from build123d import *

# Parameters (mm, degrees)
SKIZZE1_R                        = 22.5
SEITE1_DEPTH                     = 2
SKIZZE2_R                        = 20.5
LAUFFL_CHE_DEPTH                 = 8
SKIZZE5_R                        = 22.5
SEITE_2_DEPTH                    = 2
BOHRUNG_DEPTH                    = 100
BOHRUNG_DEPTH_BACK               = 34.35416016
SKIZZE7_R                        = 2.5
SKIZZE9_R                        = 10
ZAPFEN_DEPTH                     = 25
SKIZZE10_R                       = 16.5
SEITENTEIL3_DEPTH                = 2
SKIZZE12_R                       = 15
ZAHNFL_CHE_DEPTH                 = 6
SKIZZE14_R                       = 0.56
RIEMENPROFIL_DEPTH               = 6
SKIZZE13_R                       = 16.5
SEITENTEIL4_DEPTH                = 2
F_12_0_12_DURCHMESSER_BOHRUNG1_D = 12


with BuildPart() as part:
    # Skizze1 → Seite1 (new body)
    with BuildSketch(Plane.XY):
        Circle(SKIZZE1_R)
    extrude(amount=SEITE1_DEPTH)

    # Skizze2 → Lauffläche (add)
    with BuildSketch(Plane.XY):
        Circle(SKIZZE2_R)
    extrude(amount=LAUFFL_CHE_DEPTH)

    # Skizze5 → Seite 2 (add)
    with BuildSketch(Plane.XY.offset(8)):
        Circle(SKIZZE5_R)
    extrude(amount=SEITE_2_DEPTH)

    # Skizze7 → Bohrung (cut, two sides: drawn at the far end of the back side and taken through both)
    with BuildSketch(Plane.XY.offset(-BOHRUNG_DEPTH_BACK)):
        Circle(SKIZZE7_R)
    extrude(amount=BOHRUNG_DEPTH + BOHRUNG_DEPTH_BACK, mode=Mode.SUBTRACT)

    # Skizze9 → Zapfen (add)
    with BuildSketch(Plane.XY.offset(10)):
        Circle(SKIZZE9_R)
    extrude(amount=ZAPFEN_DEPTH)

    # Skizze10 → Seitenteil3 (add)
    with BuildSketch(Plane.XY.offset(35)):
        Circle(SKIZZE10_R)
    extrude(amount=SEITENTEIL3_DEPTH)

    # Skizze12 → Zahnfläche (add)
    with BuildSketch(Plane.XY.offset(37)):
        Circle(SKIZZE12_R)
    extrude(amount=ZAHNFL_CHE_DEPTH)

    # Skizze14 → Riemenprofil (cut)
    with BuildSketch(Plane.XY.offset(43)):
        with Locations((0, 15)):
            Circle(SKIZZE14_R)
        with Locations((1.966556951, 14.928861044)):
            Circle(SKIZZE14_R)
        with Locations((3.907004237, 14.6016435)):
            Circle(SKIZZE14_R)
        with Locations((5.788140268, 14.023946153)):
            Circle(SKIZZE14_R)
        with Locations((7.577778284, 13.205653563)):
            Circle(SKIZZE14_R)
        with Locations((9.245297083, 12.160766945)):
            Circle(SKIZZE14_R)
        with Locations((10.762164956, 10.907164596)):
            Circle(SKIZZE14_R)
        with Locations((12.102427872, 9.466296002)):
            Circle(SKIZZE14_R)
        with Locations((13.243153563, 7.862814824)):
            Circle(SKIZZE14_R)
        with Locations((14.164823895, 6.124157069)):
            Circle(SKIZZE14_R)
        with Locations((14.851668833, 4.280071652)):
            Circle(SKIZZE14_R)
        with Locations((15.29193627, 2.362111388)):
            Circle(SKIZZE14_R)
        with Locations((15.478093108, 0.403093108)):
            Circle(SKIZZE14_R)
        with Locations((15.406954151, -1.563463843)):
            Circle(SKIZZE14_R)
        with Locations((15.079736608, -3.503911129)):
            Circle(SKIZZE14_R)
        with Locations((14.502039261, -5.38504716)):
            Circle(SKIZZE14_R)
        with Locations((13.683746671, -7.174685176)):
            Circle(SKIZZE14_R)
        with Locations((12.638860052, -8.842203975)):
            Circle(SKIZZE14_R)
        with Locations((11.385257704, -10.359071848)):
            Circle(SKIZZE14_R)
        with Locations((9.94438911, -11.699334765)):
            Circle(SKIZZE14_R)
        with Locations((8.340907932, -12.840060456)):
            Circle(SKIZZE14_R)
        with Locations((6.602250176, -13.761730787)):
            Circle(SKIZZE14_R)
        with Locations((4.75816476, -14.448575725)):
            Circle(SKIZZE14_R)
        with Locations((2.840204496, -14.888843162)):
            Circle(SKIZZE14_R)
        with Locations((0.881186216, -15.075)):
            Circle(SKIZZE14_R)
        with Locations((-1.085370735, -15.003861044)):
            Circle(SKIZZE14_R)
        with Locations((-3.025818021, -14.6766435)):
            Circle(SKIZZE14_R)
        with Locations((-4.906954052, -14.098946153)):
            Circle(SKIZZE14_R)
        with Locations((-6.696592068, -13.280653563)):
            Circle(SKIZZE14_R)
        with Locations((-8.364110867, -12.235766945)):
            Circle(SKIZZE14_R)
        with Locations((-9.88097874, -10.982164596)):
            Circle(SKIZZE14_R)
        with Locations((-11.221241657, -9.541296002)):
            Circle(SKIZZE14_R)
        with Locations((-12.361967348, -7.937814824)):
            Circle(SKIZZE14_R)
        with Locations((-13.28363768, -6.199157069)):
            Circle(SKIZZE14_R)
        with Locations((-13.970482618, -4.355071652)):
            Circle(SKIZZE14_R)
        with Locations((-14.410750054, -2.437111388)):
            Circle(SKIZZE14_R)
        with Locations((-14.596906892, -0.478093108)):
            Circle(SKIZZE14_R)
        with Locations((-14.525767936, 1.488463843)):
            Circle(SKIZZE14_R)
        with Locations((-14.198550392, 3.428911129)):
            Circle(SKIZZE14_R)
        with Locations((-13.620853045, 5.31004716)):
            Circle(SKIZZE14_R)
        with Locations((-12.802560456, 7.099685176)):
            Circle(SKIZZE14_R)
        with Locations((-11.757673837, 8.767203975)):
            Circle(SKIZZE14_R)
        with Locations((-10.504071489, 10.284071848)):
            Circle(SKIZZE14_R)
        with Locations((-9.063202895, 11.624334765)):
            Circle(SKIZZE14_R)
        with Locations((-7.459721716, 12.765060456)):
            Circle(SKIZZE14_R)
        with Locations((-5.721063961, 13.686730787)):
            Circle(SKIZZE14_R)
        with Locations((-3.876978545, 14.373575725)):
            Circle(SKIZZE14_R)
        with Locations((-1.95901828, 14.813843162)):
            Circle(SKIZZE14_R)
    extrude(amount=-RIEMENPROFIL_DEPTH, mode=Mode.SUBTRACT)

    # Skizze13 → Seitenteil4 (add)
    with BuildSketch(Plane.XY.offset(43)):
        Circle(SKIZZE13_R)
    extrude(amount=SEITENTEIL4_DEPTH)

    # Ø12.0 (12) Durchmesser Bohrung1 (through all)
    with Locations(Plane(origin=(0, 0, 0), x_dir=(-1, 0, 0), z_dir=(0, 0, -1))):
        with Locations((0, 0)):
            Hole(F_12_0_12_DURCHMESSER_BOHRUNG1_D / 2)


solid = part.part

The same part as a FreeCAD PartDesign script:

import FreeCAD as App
import Part
import Sketcher

doc = App.newDocument("Part")
body = doc.addObject("PartDesign::Body", "Body")

# Sketch on XY plane
sketch1 = doc.addObject("Sketcher::SketchObject", "Sketch")
body.addObject(sketch1)
sketch1.AttachmentSupport = (doc.XY_Plane, [""])
sketch1.MapMode = "FlatFace"
sketch1.addGeometry(Part.Circle(App.Vector(0, 0, 0), App.Vector(0, 0, 1), 22.5), False)
sketch1.addConstraint([
    Sketcher.Constraint("Coincident", 0, 3, -1, 1),
    Sketcher.Constraint("Diameter", 0, 45.0),
])
pad1 = doc.addObject("PartDesign::Pad", "Pad")
body.addObject(pad1)
pad1.Profile = sketch1
pad1.Length = 2

# Sketch on XY plane
sketch2 = doc.addObject("Sketcher::SketchObject", "Sketch001")
body.addObject(sketch2)
sketch2.AttachmentSupport = (doc.XY_Plane, [""])
sketch2.MapMode = "FlatFace"
sketch2.addGeometry(Part.Circle(App.Vector(0, 0, 0), App.Vector(0, 0, 1), 20.5), False)
sketch2.addConstraint([
    Sketcher.Constraint("Coincident", 0, 3, -1, 1),
    Sketcher.Constraint("Diameter", 0, 41.0),
])
pad2 = doc.addObject("PartDesign::Pad", "Pad001")
body.addObject(pad2)
pad2.Profile = sketch2
pad2.Length = 8

# Sketch on XY plane
sketch3 = doc.addObject("Sketcher::SketchObject", "Sketch002")
body.addObject(sketch3)
sketch3.AttachmentSupport = (doc.XY_Plane, [""])
sketch3.MapMode = "FlatFace"
sketch3.AttachmentOffset = App.Placement(App.Vector(0, 0, 8), App.Rotation())
sketch3.addGeometry(Part.Circle(App.Vector(0, 0, 0), App.Vector(0, 0, 1), 22.5), False)
sketch3.addConstraint([
    Sketcher.Constraint("Coincident", 0, 3, -1, 1),
    Sketcher.Constraint("Diameter", 0, 45.0),
])
pad3 = doc.addObject("PartDesign::Pad", "Pad002")
body.addObject(pad3)
pad3.Profile = sketch3
pad3.Length = 2

# Sketch on XY plane
sketch4 = doc.addObject("Sketcher::SketchObject", "Sketch003")
body.addObject(sketch4)
sketch4.AttachmentSupport = (doc.XY_Plane, [""])
sketch4.MapMode = "FlatFace"
sketch4.addGeometry(Part.Circle(App.Vector(0, 0, 0), App.Vector(0, 0, 1), 2.5), False)
sketch4.addConstraint([
    Sketcher.Constraint("Coincident", 0, 3, -1, 1),
    Sketcher.Constraint("Diameter", 0, 5.0),
])
pocket1 = doc.addObject("PartDesign::Pocket", "Pocket")
body.addObject(pocket1)
pocket1.Profile = sketch4
pocket1.Type = "ThroughAll"
pocket1.Midplane = True

# Sketch on XY plane
sketch5 = doc.addObject("Sketcher::SketchObject", "Sketch004")
body.addObject(sketch5)
sketch5.AttachmentSupport = (doc.XY_Plane, [""])
sketch5.MapMode = "FlatFace"
sketch5.AttachmentOffset = App.Placement(App.Vector(0, 0, 10), App.Rotation())
sketch5.addGeometry(Part.Circle(App.Vector(0, 0, 0), App.Vector(0, 0, 1), 10), False)
sketch5.addConstraint([
    Sketcher.Constraint("Coincident", 0, 3, -1, 1),
    Sketcher.Constraint("Diameter", 0, 20.0),
])
pad4 = doc.addObject("PartDesign::Pad", "Pad003")
body.addObject(pad4)
pad4.Profile = sketch5
pad4.Length = 25

# Sketch on XY plane
sketch6 = doc.addObject("Sketcher::SketchObject", "Sketch005")
body.addObject(sketch6)
sketch6.AttachmentSupport = (doc.XY_Plane, [""])
sketch6.MapMode = "FlatFace"
sketch6.AttachmentOffset = App.Placement(App.Vector(0, 0, 35), App.Rotation())
sketch6.addGeometry(Part.Circle(App.Vector(0, 0, 0), App.Vector(0, 0, 1), 16.5), False)
sketch6.addConstraint([
    Sketcher.Constraint("Coincident", 0, 3, -1, 1),
    Sketcher.Constraint("Diameter", 0, 33.0),
])
pad5 = doc.addObject("PartDesign::Pad", "Pad004")
body.addObject(pad5)
pad5.Profile = sketch6
pad5.Length = 2

# Sketch on XY plane
sketch7 = doc.addObject("Sketcher::SketchObject", "Sketch006")
body.addObject(sketch7)
sketch7.AttachmentSupport = (doc.XY_Plane, [""])
sketch7.MapMode = "FlatFace"
sketch7.AttachmentOffset = App.Placement(App.Vector(0, 0, 37), App.Rotation())
sketch7.addGeometry(Part.Circle(App.Vector(0, 0, 0), App.Vector(0, 0, 1), 15), False)
sketch7.addConstraint([
    Sketcher.Constraint("Coincident", 0, 3, -1, 1),
    Sketcher.Constraint("Diameter", 0, 30.0),
])
pad6 = doc.addObject("PartDesign::Pad", "Pad005")
body.addObject(pad6)
pad6.Profile = sketch7
pad6.Length = 6

# Sketch on XY plane
sketch8 = doc.addObject("Sketcher::SketchObject", "Sketch007")
body.addObject(sketch8)
sketch8.AttachmentSupport = (doc.XY_Plane, [""])
sketch8.MapMode = "FlatFace"
sketch8.AttachmentOffset = App.Placement(App.Vector(0, 0, 43), App.Rotation())
sketch8.addGeometry([
    Part.Circle(App.Vector(0, 15, 0), App.Vector(0, 0, 1), 0.56),  # 0
    Part.Circle(App.Vector(1.966557, 14.928861, 0), App.Vector(0, 0, 1), 0.56),  # 1
    Part.Circle(App.Vector(3.907004, 14.601643, 0), App.Vector(0, 0, 1), 0.56),  # 2
    Part.Circle(App.Vector(5.78814, 14.023946, 0), App.Vector(0, 0, 1), 0.56),  # 3
    Part.Circle(App.Vector(7.577778, 13.205654, 0), App.Vector(0, 0, 1), 0.56),  # 4
    Part.Circle(App.Vector(9.245297, 12.160767, 0), App.Vector(0, 0, 1), 0.56),  # 5
    Part.Circle(App.Vector(10.762165, 10.907165, 0), App.Vector(0, 0, 1), 0.56),  # 6
    Part.Circle(App.Vector(12.102428, 9.466296, 0), App.Vector(0, 0, 1), 0.56),  # 7
    Part.Circle(App.Vector(13.243154, 7.862815, 0), App.Vector(0, 0, 1), 0.56),  # 8
    Part.Circle(App.Vector(14.164824, 6.124157, 0), App.Vector(0, 0, 1), 0.56),  # 9
    Part.Circle(App.Vector(14.851669, 4.280072, 0), App.Vector(0, 0, 1), 0.56),  # 10
    Part.Circle(App.Vector(15.291936, 2.362111, 0), App.Vector(0, 0, 1), 0.56),  # 11
    Part.Circle(App.Vector(15.478093, 0.403093, 0), App.Vector(0, 0, 1), 0.56),  # 12
    Part.Circle(App.Vector(15.406954, -1.563464, 0), App.Vector(0, 0, 1), 0.56),  # 13
    Part.Circle(App.Vector(15.079737, -3.503911, 0), App.Vector(0, 0, 1), 0.56),  # 14
    Part.Circle(App.Vector(14.502039, -5.385047, 0), App.Vector(0, 0, 1), 0.56),  # 15
    Part.Circle(App.Vector(13.683747, -7.174685, 0), App.Vector(0, 0, 1), 0.56),  # 16
    Part.Circle(App.Vector(12.63886, -8.842204, 0), App.Vector(0, 0, 1), 0.56),  # 17
    Part.Circle(App.Vector(11.385258, -10.359072, 0), App.Vector(0, 0, 1), 0.56),  # 18
    Part.Circle(App.Vector(9.944389, -11.699335, 0), App.Vector(0, 0, 1), 0.56),  # 19
    Part.Circle(App.Vector(8.340908, -12.84006, 0), App.Vector(0, 0, 1), 0.56),  # 20
    Part.Circle(App.Vector(6.60225, -13.761731, 0), App.Vector(0, 0, 1), 0.56),  # 21
    Part.Circle(App.Vector(4.758165, -14.448576, 0), App.Vector(0, 0, 1), 0.56),  # 22
    Part.Circle(App.Vector(2.840204, -14.888843, 0), App.Vector(0, 0, 1), 0.56),  # 23
    Part.Circle(App.Vector(0.881186, -15.075, 0), App.Vector(0, 0, 1), 0.56),  # 24
    Part.Circle(App.Vector(-1.085371, -15.003861, 0), App.Vector(0, 0, 1), 0.56),  # 25
    Part.Circle(App.Vector(-3.025818, -14.676644, 0), App.Vector(0, 0, 1), 0.56),  # 26
    Part.Circle(App.Vector(-4.906954, -14.098946, 0), App.Vector(0, 0, 1), 0.56),  # 27
    Part.Circle(App.Vector(-6.696592, -13.280654, 0), App.Vector(0, 0, 1), 0.56),  # 28
    Part.Circle(App.Vector(-8.364111, -12.235767, 0), App.Vector(0, 0, 1), 0.56),  # 29
    Part.Circle(App.Vector(-9.880979, -10.982165, 0), App.Vector(0, 0, 1), 0.56),  # 30
    Part.Circle(App.Vector(-11.221242, -9.541296, 0), App.Vector(0, 0, 1), 0.56),  # 31
    Part.Circle(App.Vector(-12.361967, -7.937815, 0), App.Vector(0, 0, 1), 0.56),  # 32
    Part.Circle(App.Vector(-13.283638, -6.199157, 0), App.Vector(0, 0, 1), 0.56),  # 33
    Part.Circle(App.Vector(-13.970483, -4.355072, 0), App.Vector(0, 0, 1), 0.56),  # 34
    Part.Circle(App.Vector(-14.41075, -2.437111, 0), App.Vector(0, 0, 1), 0.56),  # 35
    Part.Circle(App.Vector(-14.596907, -0.478093, 0), App.Vector(0, 0, 1), 0.56),  # 36
    Part.Circle(App.Vector(-14.525768, 1.488464, 0), App.Vector(0, 0, 1), 0.56),  # 37
    Part.Circle(App.Vector(-14.19855, 3.428911, 0), App.Vector(0, 0, 1), 0.56),  # 38
    Part.Circle(App.Vector(-13.620853, 5.310047, 0), App.Vector(0, 0, 1), 0.56),  # 39
    Part.Circle(App.Vector(-12.80256, 7.099685, 0), App.Vector(0, 0, 1), 0.56),  # 40
    Part.Circle(App.Vector(-11.757674, 8.767204, 0), App.Vector(0, 0, 1), 0.56),  # 41
    Part.Circle(App.Vector(-10.504071, 10.284072, 0), App.Vector(0, 0, 1), 0.56),  # 42
    Part.Circle(App.Vector(-9.063203, 11.624335, 0), App.Vector(0, 0, 1), 0.56),  # 43
    Part.Circle(App.Vector(-7.459722, 12.76506, 0), App.Vector(0, 0, 1), 0.56),  # 44
    Part.Circle(App.Vector(-5.721064, 13.686731, 0), App.Vector(0, 0, 1), 0.56),  # 45
    Part.Circle(App.Vector(-3.876979, 14.373576, 0), App.Vector(0, 0, 1), 0.56),  # 46
    Part.Circle(App.Vector(-1.959018, 14.813843, 0), App.Vector(0, 0, 1), 0.56),  # 47
], False)
sketch8.addConstraint([
    Sketcher.Constraint("Equal", 0, 1),
    Sketcher.Constraint("Equal", 1, 2),
    Sketcher.Constraint("Equal", 2, 3),
    Sketcher.Constraint("Equal", 3, 4),
    Sketcher.Constraint("Equal", 4, 5),
    Sketcher.Constraint("Equal", 5, 6),
    Sketcher.Constraint("Equal", 6, 7),
    Sketcher.Constraint("Equal", 7, 8),
    Sketcher.Constraint("Equal", 8, 9),
    Sketcher.Constraint("Equal", 9, 10),
    Sketcher.Constraint("Equal", 10, 11),
    Sketcher.Constraint("Equal", 11, 12),
    Sketcher.Constraint("Equal", 12, 13),
    Sketcher.Constraint("Equal", 13, 14),
    Sketcher.Constraint("Equal", 14, 15),
    Sketcher.Constraint("Equal", 15, 16),
    Sketcher.Constraint("Equal", 16, 17),
    Sketcher.Constraint("Equal", 17, 18),
    Sketcher.Constraint("Equal", 18, 19),
    Sketcher.Constraint("Equal", 19, 20),
    Sketcher.Constraint("Equal", 20, 21),
    Sketcher.Constraint("Equal", 21, 22),
    Sketcher.Constraint("Equal", 22, 23),
    Sketcher.Constraint("Equal", 23, 24),
    Sketcher.Constraint("Equal", 24, 25),
    Sketcher.Constraint("Equal", 25, 26),
    Sketcher.Constraint("Equal", 26, 27),
    Sketcher.Constraint("Equal", 27, 28),
    Sketcher.Constraint("Equal", 28, 29),
    Sketcher.Constraint("Equal", 29, 30),
    Sketcher.Constraint("Equal", 30, 31),
    Sketcher.Constraint("Equal", 31, 32),
    Sketcher.Constraint("Equal", 32, 33),
    Sketcher.Constraint("Equal", 33, 34),
    Sketcher.Constraint("Equal", 34, 35),
    Sketcher.Constraint("Equal", 35, 36),
    Sketcher.Constraint("Equal", 36, 37),
    Sketcher.Constraint("Equal", 37, 38),
    Sketcher.Constraint("Equal", 38, 39),
    Sketcher.Constraint("Equal", 39, 40),
    Sketcher.Constraint("Equal", 40, 41),
    Sketcher.Constraint("Equal", 41, 42),
    Sketcher.Constraint("Equal", 42, 43),
    Sketcher.Constraint("Equal", 43, 44),
    Sketcher.Constraint("Equal", 44, 45),
    Sketcher.Constraint("Equal", 45, 46),
    Sketcher.Constraint("Equal", 46, 47),
    Sketcher.Constraint("PointOnObject", 0, 3, -2),
    Sketcher.Constraint("Diameter", 0, 1.12),
    Sketcher.Constraint("DistanceY", -1, 1, 0, 3, 15.0),
    Sketcher.Constraint("DistanceY", 24, 3, -1, 1, 15.075),
    Sketcher.Constraint("DistanceX", 8, 3, 13, 3, 2.163801),
    Sketcher.Constraint("DistanceX", 14, 3, 11, 3, 0.2122),
    Sketcher.Constraint("DistanceY", 25, 3, 20, 3, 2.163801),
    Sketcher.Constraint("DistanceY", 23, 3, 26, 3, 0.2122),
    Sketcher.Constraint("DistanceX", 37, 3, 32, 3, 2.163801),
    Sketcher.Constraint("DistanceX", 35, 3, 38, 3, 0.2122),
    Sketcher.Constraint("DistanceY", 2, 3, 47, 3, 0.2122),
    Sketcher.Constraint("DistanceY", -1, 1, 1, 3, 14.928861),
    Sketcher.Constraint("DistanceX", -1, 1, 3, 3, 5.78814),
    Sketcher.Constraint("DistanceX", -1, 1, 4, 3, 7.577778),
    Sketcher.Constraint("DistanceX", -1, 1, 10, 3, 14.851669),
    Sketcher.Constraint("DistanceY", -1, 1, 10, 3, 4.280072),
    Sketcher.Constraint("DistanceY", -1, 1, 11, 3, 2.362111),
    Sketcher.Constraint("DistanceY", 14, 3, -1, 1, 3.503911),
    Sketcher.Constraint("DistanceX", -1, 1, 15, 3, 14.502039),
    Sketcher.Constraint("DistanceX", -1, 1, 17, 3, 12.63886),
    Sketcher.Constraint("DistanceY", 18, 3, -1, 1, 10.359072),
    Sketcher.Constraint("DistanceX", -1, 1, 19, 3, 9.944389),
    Sketcher.Constraint("DistanceY", 20, 3, -1, 1, 12.84006),
    Sketcher.Constraint("DistanceX", -1, 1, 21, 3, 6.60225),
    Sketcher.Constraint("DistanceY", 21, 3, -1, 1, 13.761731),
    Sketcher.Constraint("DistanceX", 25, 3, -1, 1, 1.085371),
    Sketcher.Constraint("DistanceX", 26, 3, -1, 1, 3.025818),
    Sketcher.Constraint("DistanceX", 29, 3, -1, 1, 8.364111),
    Sketcher.Constraint("DistanceX", 30, 3, -1, 1, 9.880979),
    Sketcher.Constraint("DistanceX", 31, 3, -1, 1, 11.221242),
    Sketcher.Constraint("DistanceY", 34, 3, -1, 1, 4.355072),
    Sketcher.Constraint("DistanceX", 35, 3, -1, 1, 14.41075),
    Sketcher.Constraint("DistanceY", 35, 3, -1, 1, 2.437111),
    Sketcher.Constraint("DistanceY", -1, 1, 38, 3, 3.428911),
    Sketcher.Constraint("DistanceX", 40, 3, -1, 1, 12.80256),
    Sketcher.Constraint("DistanceX", 42, 3, -1, 1, 10.504071),
    Sketcher.Constraint("DistanceY", -1, 1, 42, 3, 10.284072),
    Sketcher.Constraint("DistanceX", 44, 3, -1, 1, 7.459722),
    Sketcher.Constraint("DistanceY", -1, 1, 44, 3, 12.76506),
    Sketcher.Constraint("DistanceY", -1, 1, 45, 3, 13.686731),
    Sketcher.Constraint("DistanceX", 46, 3, -1, 1, 3.876979),
    Sketcher.Constraint("DistanceX", 47, 3, -1, 1, 1.959018),
    Sketcher.Constraint("DistanceY", 4, 3, 2, 3, 1.39599),
    Sketcher.Constraint("DistanceX", 1, 3, 4, 3, 5.611221),
    Sketcher.Constraint("DistanceX", 4, 3, 5, 3, 1.667519),
    Sketcher.Constraint("DistanceY", 5, 3, 3, 3, 1.863179),
    Sketcher.Constraint("DistanceY", 6, 3, 4, 3, 2.298489),
    Sketcher.Constraint("DistanceY", 6, 3, 3, 3, 3.116782),
    Sketcher.Constraint("DistanceX", 2, 3, 6, 3, 6.855161),
    Sketcher.Constraint("DistanceX", 1, 3, 6, 3, 8.795608),
    Sketcher.Constraint("DistanceY", 7, 3, 6, 3, 1.440869),
    Sketcher.Constraint("DistanceX", 5, 3, 7, 3, 2.857131),
    Sketcher.Constraint("DistanceY", 8, 3, 7, 3, 1.603481),
    Sketcher.Constraint("DistanceX", 6, 3, 8, 3, 2.480989),
    Sketcher.Constraint("DistanceX", 8, 3, 9, 3, 0.92167),
    Sketcher.Constraint("DistanceY", 9, 3, 7, 3, 3.342139),
    Sketcher.Constraint("DistanceX", 7, 3, 11, 3, 3.189508),
    Sketcher.Constraint("DistanceY", 12, 3, 11, 3, 1.959018),
    Sketcher.Constraint("DistanceX", 9, 3, 12, 3, 1.313269),
    Sketcher.Constraint("DistanceY", 12, 3, 8, 3, 7.459722),
    Sketcher.Constraint("DistanceY", 13, 3, 9, 3, 7.687621),
    Sketcher.Constraint("DistanceY", 15, 3, 12, 3, 5.78814),
    Sketcher.Constraint("DistanceY", 16, 3, 15, 3, 1.789638),
    Sketcher.Constraint("DistanceX", 16, 3, 14, 3, 1.39599),
    Sketcher.Constraint("DistanceY", 17, 3, 16, 3, 1.667519),
    Sketcher.Constraint("DistanceX", 18, 3, 16, 3, 2.298489),
    Sketcher.Constraint("DistanceY", 19, 3, 17, 3, 2.857131),
    Sketcher.Constraint("DistanceX", 20, 3, 19, 3, 1.603481),
    Sketcher.Constraint("DistanceY", 22, 3, 19, 3, 2.749241),
    Sketcher.Constraint("DistanceX", 23, 3, 22, 3, 1.91796),
    Sketcher.Constraint("DistanceY", 23, 3, 19, 3, 3.189508),
    Sketcher.Constraint("DistanceX", 24, 3, 23, 3, 1.959018),
    Sketcher.Constraint("DistanceX", 24, 3, 20, 3, 7.459722),
    Sketcher.Constraint("DistanceX", 27, 3, 24, 3, 5.78814),
    Sketcher.Constraint("DistanceY", 22, 3, 27, 3, 0.34963),
    Sketcher.Constraint("DistanceX", 28, 3, 27, 3, 1.789638),
    Sketcher.Constraint("DistanceY", 26, 3, 28, 3, 1.39599),
    Sketcher.Constraint("DistanceY", 27, 3, 29, 3, 1.863179),
    Sketcher.Constraint("DistanceY", 28, 3, 30, 3, 2.298489),
    Sketcher.Constraint("DistanceY", 30, 3, 31, 3, 1.440869),
    Sketcher.Constraint("DistanceY", 31, 3, 32, 3, 1.603481),
    Sketcher.Constraint("DistanceX", 32, 3, 30, 3, 2.480989),
    Sketcher.Constraint("DistanceX", 33, 3, 32, 3, 0.92167),
    Sketcher.Constraint("DistanceY", 31, 3, 33, 3, 3.342139),
    Sketcher.Constraint("DistanceX", 34, 3, 31, 3, 2.749241),
    Sketcher.Constraint("DistanceY", 35, 3, 36, 3, 1.959018),
    Sketcher.Constraint("DistanceX", 36, 3, 33, 3, 1.313269),
    Sketcher.Constraint("DistanceY", 33, 3, 37, 3, 7.687621),
    Sketcher.Constraint("DistanceY", 36, 3, 39, 3, 5.78814),
    Sketcher.Constraint("DistanceX", 34, 3, 39, 3, 0.34963),
    Sketcher.Constraint("DistanceY", 39, 3, 40, 3, 1.789638),
    Sketcher.Constraint("DistanceY", 40, 3, 41, 3, 1.667519),
    Sketcher.Constraint("DistanceX", 39, 3, 41, 3, 1.863179),
    Sketcher.Constraint("DistanceX", 42, 3, 43, 3, 1.440869),
    Sketcher.Constraint("DistanceY", 41, 3, 43, 3, 2.857131),
    Sketcher.Constraint("DistanceX", 43, 3, 45, 3, 3.342139),
    Sketcher.Constraint("DistanceY", 43, 3, 46, 3, 2.749241),
])
pocket2 = doc.addObject("PartDesign::Pocket", "Pocket001")
body.addObject(pocket2)
pocket2.Profile = sketch8
pocket2.Length = 6

# Sketch on XY plane
sketch9 = doc.addObject("Sketcher::SketchObject", "Sketch008")
body.addObject(sketch9)
sketch9.AttachmentSupport = (doc.XY_Plane, [""])
sketch9.MapMode = "FlatFace"
sketch9.AttachmentOffset = App.Placement(App.Vector(0, 0, 43), App.Rotation())
sketch9.addGeometry(Part.Circle(App.Vector(0, 0, 0), App.Vector(0, 0, 1), 16.5), False)
sketch9.addConstraint([
    Sketcher.Constraint("Coincident", 0, 3, -1, 1),
    Sketcher.Constraint("Diameter", 0, 33.0),
])
pad7 = doc.addObject("PartDesign::Pad", "Pad006")
body.addObject(pad7)
pad7.Profile = sketch9
pad7.Length = 2

# Sketch on XY plane
sketch10 = doc.addObject("Sketcher::SketchObject", "Sketch009")
body.addObject(sketch10)
sketch10.AttachmentSupport = (doc.XY_Plane, [""])
sketch10.MapMode = "FlatFace"
sketch10.addGeometry(Part.Circle(App.Vector(0, 0, 0), App.Vector(0, 0, 1), 6), False)
sketch10.addConstraint([
    Sketcher.Constraint("Coincident", 0, 3, -1, 1),
    Sketcher.Constraint("Diameter", 0, 12.0),
])
doc.recompute()
hole = doc.addObject("PartDesign::Hole", "Hole")
body.addObject(hole)
hole.Profile = sketch10
hole.ThreadType = "None"
hole.Diameter = 12
hole.DepthType = "ThroughAll"
hole.Reversed = True

doc.recompute()
